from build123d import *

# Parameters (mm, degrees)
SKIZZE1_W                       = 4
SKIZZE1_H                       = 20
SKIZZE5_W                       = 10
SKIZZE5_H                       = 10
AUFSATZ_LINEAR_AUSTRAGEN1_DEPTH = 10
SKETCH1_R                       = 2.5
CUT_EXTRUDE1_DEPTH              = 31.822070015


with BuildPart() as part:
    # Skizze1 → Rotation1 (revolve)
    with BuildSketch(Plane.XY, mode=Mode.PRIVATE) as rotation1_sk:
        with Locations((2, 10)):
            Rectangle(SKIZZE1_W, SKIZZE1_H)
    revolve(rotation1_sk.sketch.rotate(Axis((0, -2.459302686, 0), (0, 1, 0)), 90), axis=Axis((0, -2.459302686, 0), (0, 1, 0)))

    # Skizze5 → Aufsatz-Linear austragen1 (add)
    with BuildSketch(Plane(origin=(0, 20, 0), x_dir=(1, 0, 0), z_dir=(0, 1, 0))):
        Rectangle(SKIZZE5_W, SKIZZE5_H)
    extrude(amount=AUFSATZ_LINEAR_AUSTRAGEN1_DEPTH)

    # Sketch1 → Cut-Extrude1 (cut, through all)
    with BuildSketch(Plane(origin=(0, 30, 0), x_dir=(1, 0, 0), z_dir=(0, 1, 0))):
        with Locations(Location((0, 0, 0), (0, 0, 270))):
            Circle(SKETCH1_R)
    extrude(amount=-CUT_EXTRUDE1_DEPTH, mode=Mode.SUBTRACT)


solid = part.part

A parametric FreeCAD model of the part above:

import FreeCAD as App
import Part
import Sketcher


def add_polygon(sketch, points):
    """Adds a closed chain of lines whose ends are joined by coincident constraints."""
    first, n = sketch.GeometryCount, len(points)
    for a, b in zip(points, points[1:] + points[:1]):
        sketch.addGeometry(Part.LineSegment(App.Vector(*a, 0), App.Vector(*b, 0)), False)
    for i in range(n):
        sketch.addConstraint(Sketcher.Constraint("Coincident", first + i, 2, first + (i + 1) % n, 1))

doc = App.newDocument("Part")
params = doc.addObject("Spreadsheet::Sheet", "Params")
for row, (alias, value) in enumerate([
    ("sketch1_width", "4 mm"),
    ("sketch1_height", "20 mm"),
    ("revolution_angle", "360 deg"),
    ("sketch2_width", "10 mm"),
    ("pad1_length", "10 mm"),
    ("sketch3_diameter", "5 mm"),
], start=1):
    params.set(f"A{row}", alias)
    params.set(f"B{row}", "=" + value)
    params.setAlias(f"B{row}", alias)

body = doc.addObject("PartDesign::Body", "Body")

sketch1 = body.newObject("Sketcher::SketchObject", "Sketch")
sketch1.AttachmentSupport = (doc.getObject("XY_Plane"), [""])
sketch1.MapMode = "FlatFace"
add_polygon(sketch1, [(0, 20), (0, 0), (4, 0), (4, 20)])
sketch1.addConstraint([
    Sketcher.Constraint("Vertical", 0),
    Sketcher.Constraint("Horizontal", 1),
    Sketcher.Constraint("Vertical", 2),
    Sketcher.Constraint("Horizontal", 3),
    Sketcher.Constraint("Coincident", 0, 2, -1, 1),
    Sketcher.Constraint("DistanceX", 1, 1, 1, 2, 4.0),
    Sketcher.Constraint("DistanceY", 0, 2, 0, 1, 20.0),
])
sketch1.setExpression("Constraints[9]", "Params.sketch1_width")
sketch1.setExpression("Constraints[10]", "Params.sketch1_height")
revolution = body.newObject("PartDesign::Revolution", "Revolution")
revolution.Profile = sketch1
revolution.ReferenceAxis = (sketch1, ["V_Axis"])
revolution.setExpression("Angle", "Params.revolution_angle")

sketch2 = body.newObject("Sketcher::SketchObject", "Sketch001")
sketch2.AttachmentSupport = (doc.getObject("XZ_Plane"), [""])
sketch2.MapMode = "FlatFace"
sketch2.AttachmentOffset = App.Placement(App.Vector(0, 0, -20), App.Rotation())
add_polygon(sketch2, [(-5, -5), (-5, 5), (5, 5), (5, -5)])
sketch2.addConstraint([
    Sketcher.Constraint("Vertical", 0),
    Sketcher.Constraint("Horizontal", 1),
    Sketcher.Constraint("Vertical", 2),
    Sketcher.Constraint("Horizontal", 3),
    Sketcher.Constraint("Symmetric", 0, 2, 2, 2, -1, 1),
    Sketcher.Constraint("Equal", 3, 0),
    Sketcher.Constraint("DistanceX", 1, 1, 1, 2, 10.0),
])
sketch2.setExpression("Constraints[10]", "Params.sketch2_width")
pad1 = body.newObject("PartDesign::Pad", "Pad")
pad1.Profile = sketch2
pad1.setExpression("Length", "Params.pad1_length")
pad1.Reversed = True

sketch3 = body.newObject("Sketcher::SketchObject", "Sketch002")
sketch3.AttachmentSupport = (doc.getObject("XZ_Plane"), [""])
sketch3.MapMode = "FlatFace"
sketch3.AttachmentOffset = App.Placement(App.Vector(0, 0, -30), App.Rotation())
sketch3.addGeometry(Part.Circle(App.Vector(0, 0, 0), App.Vector(0, 0, 1), 2.5), False)
sketch3.addConstraint([
    Sketcher.Constraint("Coincident", 0, 3, -1, 1),
    Sketcher.Constraint("Diameter", 0, 5.0),
])
sketch3.setExpression("Constraints[1]", "Params.sketch3_diameter")
pocket1 = body.newObject("PartDesign::Pocket", "Pocket")
pocket1.Profile = sketch3
pocket1.Type = "ThroughAll"
pocket1.Reversed = True

doc.recompute()
